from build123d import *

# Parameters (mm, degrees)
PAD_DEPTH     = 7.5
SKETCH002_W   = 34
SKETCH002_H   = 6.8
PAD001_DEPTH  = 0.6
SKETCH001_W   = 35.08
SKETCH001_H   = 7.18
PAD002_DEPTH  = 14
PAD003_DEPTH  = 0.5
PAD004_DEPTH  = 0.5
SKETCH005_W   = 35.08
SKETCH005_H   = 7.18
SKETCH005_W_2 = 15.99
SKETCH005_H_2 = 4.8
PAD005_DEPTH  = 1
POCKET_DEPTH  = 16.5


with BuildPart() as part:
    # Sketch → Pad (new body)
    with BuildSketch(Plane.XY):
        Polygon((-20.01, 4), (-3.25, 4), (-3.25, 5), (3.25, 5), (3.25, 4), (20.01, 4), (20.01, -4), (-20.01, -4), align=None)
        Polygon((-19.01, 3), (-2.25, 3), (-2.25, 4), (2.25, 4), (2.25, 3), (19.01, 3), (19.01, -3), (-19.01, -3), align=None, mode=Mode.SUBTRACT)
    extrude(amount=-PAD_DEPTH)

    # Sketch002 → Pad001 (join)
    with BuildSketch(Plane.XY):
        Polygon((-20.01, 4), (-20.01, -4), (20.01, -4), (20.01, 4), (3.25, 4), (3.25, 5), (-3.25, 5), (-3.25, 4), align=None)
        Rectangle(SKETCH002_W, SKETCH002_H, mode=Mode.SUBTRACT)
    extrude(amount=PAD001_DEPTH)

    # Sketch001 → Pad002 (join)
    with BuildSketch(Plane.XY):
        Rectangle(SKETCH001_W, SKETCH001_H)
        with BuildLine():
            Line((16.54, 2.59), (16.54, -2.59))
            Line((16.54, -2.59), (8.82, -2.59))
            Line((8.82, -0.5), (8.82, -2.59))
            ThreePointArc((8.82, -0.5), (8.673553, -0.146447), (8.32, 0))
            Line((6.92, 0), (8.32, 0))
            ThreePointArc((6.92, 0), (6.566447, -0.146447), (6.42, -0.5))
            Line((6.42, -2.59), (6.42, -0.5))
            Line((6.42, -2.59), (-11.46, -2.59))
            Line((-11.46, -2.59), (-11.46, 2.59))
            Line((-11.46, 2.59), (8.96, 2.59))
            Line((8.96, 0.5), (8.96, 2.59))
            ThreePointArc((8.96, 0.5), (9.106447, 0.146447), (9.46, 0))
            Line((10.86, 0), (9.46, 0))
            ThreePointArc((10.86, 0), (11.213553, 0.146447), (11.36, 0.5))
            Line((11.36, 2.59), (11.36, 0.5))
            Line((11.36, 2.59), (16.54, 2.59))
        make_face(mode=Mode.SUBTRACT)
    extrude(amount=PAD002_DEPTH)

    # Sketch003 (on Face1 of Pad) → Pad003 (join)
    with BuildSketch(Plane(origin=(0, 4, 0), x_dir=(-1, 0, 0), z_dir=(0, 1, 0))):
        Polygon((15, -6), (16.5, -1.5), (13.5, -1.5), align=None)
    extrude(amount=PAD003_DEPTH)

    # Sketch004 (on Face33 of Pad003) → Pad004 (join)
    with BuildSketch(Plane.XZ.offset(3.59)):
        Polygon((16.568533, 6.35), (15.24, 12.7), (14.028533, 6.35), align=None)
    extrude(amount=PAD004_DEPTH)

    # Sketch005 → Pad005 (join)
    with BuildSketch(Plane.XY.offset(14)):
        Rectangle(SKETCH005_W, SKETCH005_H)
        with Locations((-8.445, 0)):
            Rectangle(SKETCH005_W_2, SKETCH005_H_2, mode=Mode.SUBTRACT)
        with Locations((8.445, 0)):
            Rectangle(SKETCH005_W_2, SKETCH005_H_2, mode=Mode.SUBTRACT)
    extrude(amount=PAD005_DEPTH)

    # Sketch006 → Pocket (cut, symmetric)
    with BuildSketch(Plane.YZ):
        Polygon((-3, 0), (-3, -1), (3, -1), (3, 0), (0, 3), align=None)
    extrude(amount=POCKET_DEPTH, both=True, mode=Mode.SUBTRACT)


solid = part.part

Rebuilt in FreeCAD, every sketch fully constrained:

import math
import FreeCAD as App
import Part
import Sketcher
from FreeCAD import Vector
Q = App.Units.Quantity

doc = App.newDocument("Part")
body = doc.addObject("PartDesign::Body", "Body")

sketch1 = body.newObject("Sketcher::SketchObject", "Sketch")
sketch1.AttachmentSupport = (doc.getObject("XY_Plane"), [""])
sketch1.MapMode = "FlatFace"
sketch1.addGeometry([
    Part.LineSegment(Vector(-3.25, 4, 0), Vector(-20.01, 4, 0)),
    Part.LineSegment(Vector(-20.01, 4, 0), Vector(-20.01, -4, 0)),
    Part.LineSegment(Vector(-20.01, -4, 0), Vector(20.01, -4, 0)),
    Part.LineSegment(Vector(20.01, -4, 0), Vector(20.01, 4, 0)),
    Part.LineSegment(Vector(20.01, 4, 0), Vector(3.25, 4, 0)),
    Part.LineSegment(Vector(3.25, 4, 0), Vector(3.25, 5, 0)),
    Part.LineSegment(Vector(3.25, 5, 0), Vector(-3.25, 5, 0)),
    Part.LineSegment(Vector(-3.25, 5, 0), Vector(-3.25, 4, 0)),
    Part.LineSegment(Vector(-19.01, 3, 0), Vector(-2.25, 3, 0)),
    Part.LineSegment(Vector(-2.25, 3, 0), Vector(-2.25, 4, 0)),
    Part.LineSegment(Vector(-2.25, 4, 0), Vector(2.25, 4, 0)),
    Part.LineSegment(Vector(2.25, 4, 0), Vector(2.25, 3, 0)),
    Part.LineSegment(Vector(2.25, 3, 0), Vector(19.01, 3, 0)),
    Part.LineSegment(Vector(19.01, 3, 0), Vector(19.01, -3, 0)),
    Part.LineSegment(Vector(19.01, -3, 0), Vector(-19.01, -3, 0)),
    Part.LineSegment(Vector(-19.01, -3, 0), Vector(-19.01, 3, 0)),
], False)
sketch1.addConstraint([
    Sketcher.Constraint("Coincident", 0, 2, 1, 1),
    Sketcher.Constraint("Coincident", 1, 2, 2, 1),
    Sketcher.Constraint("Coincident", 2, 2, 3, 1),
    Sketcher.Constraint("Coincident", 3, 2, 4, 1),
    Sketcher.Constraint("Coincident", 4, 2, 5, 1),
    Sketcher.Constraint("Coincident", 5, 2, 6, 1),
    Sketcher.Constraint("Coincident", 6, 2, 7, 1),
    Sketcher.Constraint("Coincident", 7, 2, 0, 1),
    Sketcher.Constraint("Coincident", 8, 2, 9, 1),
    Sketcher.Constraint("Coincident", 9, 2, 10, 1),
    Sketcher.Constraint("Coincident", 10, 2, 11, 1),
    Sketcher.Constraint("Coincident", 11, 2, 12, 1),
    Sketcher.Constraint("Coincident", 12, 2, 13, 1),
    Sketcher.Constraint("Coincident", 13, 2, 14, 1),
    Sketcher.Constraint("Coincident", 14, 2, 15, 1),
    Sketcher.Constraint("Coincident", 15, 2, 8, 1),
    Sketcher.Constraint("Horizontal", 0),
    Sketcher.Constraint("Vertical", 1),
    Sketcher.Constraint("Horizontal", 2),
    Sketcher.Constraint("Vertical", 3),
    Sketcher.Constraint("Horizontal", 4),
    Sketcher.Constraint("Vertical", 5),
    Sketcher.Constraint("Horizontal", 6),
    Sketcher.Constraint("Vertical", 7),
    Sketcher.Constraint("Horizontal", 8),
    Sketcher.Constraint("Vertical", 9),
    Sketcher.Constraint("Horizontal", 10),
    Sketcher.Constraint("Vertical", 11),
    Sketcher.Constraint("Horizontal", 12),
    Sketcher.Constraint("Vertical", 13),
    Sketcher.Constraint("Horizontal", 14),
    Sketcher.Constraint("Vertical", 15),
    Sketcher.Constraint("Symmetric", 0, 2, 2, 2, -1, 1),
    Sketcher.Constraint("Symmetric", 12, 2, 14, 2, -1, 1),
    Sketcher.Constraint("Symmetric", 4, 2, 7, 2, -2),
    Sketcher.Constraint("Symmetric", 8, 2, 11, 2, -2),
    Sketcher.Constraint("Horizontal", 7, 2, 9, 2),
    Sketcher.Constraint("Equal", 4, 8),
    Sketcher.Constraint("Equal", 7, 9),
    Sketcher.Constraint("DistanceY", 1, 2, 1, 1, Q("8 mm")),
    Sketcher.Constraint("DistanceY", 5, 1, 5, 2, Q("1 mm")),
    Sketcher.Constraint("DistanceX", 6, 2, 6, 1, Q("6.5 mm")),
    Sketcher.Constraint("DistanceX", 10, 1, 10, 2, Q("4.5 mm")),
    Sketcher.Constraint("DistanceX", 0, 2, 0, 1, Q("16.76 mm")),
])
pad1 = body.newObject("PartDesign::Pad", "Pad")
pad1.Profile = sketch1
pad1.Length = 7.5
pad1.Reversed = True

sketch2 = body.newObject("Sketcher::SketchObject", "Sketch001")
sketch2.AttachmentSupport = (doc.getObject("XY_Plane"), [""])
sketch2.MapMode = "FlatFace"
sketch2.addGeometry([
    Part.LineSegment(Vector(-20.01, 4, 0), Vector(-20.01, -4, 0)),
    Part.LineSegment(Vector(-20.01, -4, 0), Vector(20.01, -4, 0)),
    Part.LineSegment(Vector(20.01, -4, 0), Vector(20.01, 4, 0)),
    Part.LineSegment(Vector(20.01, 4, 0), Vector(3.25, 4, 0)),
    Part.LineSegment(Vector(3.25, 4, 0), Vector(3.25, 5, 0)),
    Part.LineSegment(Vector(3.25, 5, 0), Vector(-3.25, 5, 0)),
    Part.LineSegment(Vector(-3.25, 5, 0), Vector(-3.25, 4, 0)),
    Part.LineSegment(Vector(-3.25, 4, 0), Vector(-20.01, 4, 0)),
    Part.LineSegment(Vector(17, -3.4, 0), Vector(-17, -3.4, 0)),
    Part.LineSegment(Vector(-17, -3.4, 0), Vector(-17, 3.4, 0)),
    Part.LineSegment(Vector(-17, 3.4, 0), Vector(17, 3.4, 0)),
    Part.LineSegment(Vector(17, 3.4, 0), Vector(17, -3.4, 0)),
], False)
sketch2.addConstraint([
    Sketcher.Constraint("Coincident", 0, 2, 1, 1),
    Sketcher.Constraint("Coincident", 1, 2, 2, 1),
    Sketcher.Constraint("Coincident", 2, 2, 3, 1),
    Sketcher.Constraint("Coincident", 3, 2, 4, 1),
    Sketcher.Constraint("Coincident", 4, 2, 5, 1),
    Sketcher.Constraint("Coincident", 5, 2, 6, 1),
    Sketcher.Constraint("Coincident", 6, 2, 7, 1),
    Sketcher.Constraint("Coincident", 7, 2, 0, 1),
    Sketcher.Constraint("Coincident", 8, 2, 9, 1),
    Sketcher.Constraint("Coincident", 9, 2, 10, 1),
    Sketcher.Constraint("Coincident", 10, 2, 11, 1),
    Sketcher.Constraint("Coincident", 11, 2, 8, 1),
    Sketcher.Constraint("Vertical", 0),
    Sketcher.Constraint("Horizontal", 1),
    Sketcher.Constraint("Vertical", 2),
    Sketcher.Constraint("Horizontal", 3),
    Sketcher.Constraint("Vertical", 4),
    Sketcher.Constraint("Horizontal", 5),
    Sketcher.Constraint("Vertical", 6),
    Sketcher.Constraint("Horizontal", 7),
    Sketcher.Constraint("Horizontal", 8),
    Sketcher.Constraint("Vertical", 9),
    Sketcher.Constraint("Horizontal", 10),
    Sketcher.Constraint("Vertical", 11),
    Sketcher.Constraint("Symmetric", 0, 2, 2, 2, -1, 1),
    Sketcher.Constraint("Symmetric", 8, 2, 10, 2, -1, 1),
    Sketcher.Constraint("Symmetric", 3, 2, 6, 2, -2),
    Sketcher.Constraint("DistanceX", 8, 2, 8, 1, Q("34 mm")),
    Sketcher.Constraint("DistanceY", 0, 2, 0, 1, Q("8 mm")),
    Sketcher.Constraint("DistanceY", 4, 1, 4, 2, Q("1 mm")),
    Sketcher.Constraint("DistanceX", 5, 2, 5, 1, Q("6.5 mm")),
    Sketcher.Constraint("DistanceY", 9, 1, 9, 2, Q("6.8 mm")),
    Sketcher.Constraint("DistanceX", 1, 1, 1, 2, Q("40.02 mm")),
])
pad2 = body.newObject("PartDesign::Pad", "Pad001")
pad2.Profile = sketch2
pad2.Length = 0.6

sketch3 = body.newObject("Sketcher::SketchObject", "Sketch002")
sketch3.AttachmentSupport = (doc.getObject("XY_Plane"), [""])
sketch3.MapMode = "FlatFace"
sketch3.addGeometry([
    Part.LineSegment(Vector(-17.54, 3.59, 0), Vector(-17.54, -3.59, 0)),
    Part.LineSegment(Vector(-17.54, -3.59, 0), Vector(17.54, -3.59, 0)),
    Part.LineSegment(Vector(17.54, -3.59, 0), Vector(17.54, 3.59, 0)),
    Part.LineSegment(Vector(17.54, 3.59, 0), Vector(-17.54, 3.59, 0)),
    Part.LineSegment(Vector(11.36, 2.59, 0), Vector(16.54, 2.59, 0)),
    Part.LineSegment(Vector(16.54, 2.59, 0), Vector(16.54, -2.59, 0)),
    Part.LineSegment(Vector(16.54, -2.59, 0), Vector(8.82, -2.59, 0)),
    Part.LineSegment(Vector(8.82, -2.59, 0), Vector(8.82, -0.5, 0)),
    Part.ArcOfCircle(Part.Circle(Vector(8.319999, -0.500001, 0), Vector(0, 0, 1), 0.500001), math.radians(0.000153), math.radians(89.999847)),
    Part.LineSegment(Vector(8.32, 0, 0), Vector(6.92, 0, 0)),
    Part.ArcOfCircle(Part.Circle(Vector(6.920001, -0.500001, 0), Vector(0, 0, 1), 0.500001), math.radians(90.000153), math.radians(179.999847)),
    Part.LineSegment(Vector(6.42, -0.5, 0), Vector(6.42, -2.59, 0)),
    Part.LineSegment(Vector(6.42, -2.59, 0), Vector(-11.46, -2.59, 0)),
    Part.LineSegment(Vector(-11.46, -2.59, 0), Vector(-11.46, 2.59, 0)),
    Part.LineSegment(Vector(-11.46, 2.59, 0), Vector(8.96, 2.59, 0)),
    Part.LineSegment(Vector(8.96, 2.59, 0), Vector(8.96, 0.5, 0)),
    Part.ArcOfCircle(Part.Circle(Vector(9.460001, 0.500001, 0), Vector(0, 0, 1), 0.500001), math.radians(-179.999847), math.radians(-90.000153)),
    Part.LineSegment(Vector(9.46, 0, 0), Vector(10.86, 0, 0)),
    Part.ArcOfCircle(Part.Circle(Vector(10.859999, 0.500001, 0), Vector(0, 0, 1), 0.500001), math.radians(-89.999847), math.radians(-0.000153)),
    Part.LineSegment(Vector(11.36, 0.5, 0), Vector(11.36, 2.59, 0)),
], False)
sketch3.addConstraint([
    Sketcher.Constraint("Coincident", 0, 2, 1, 1),
    Sketcher.Constraint("Coincident", 1, 2, 2, 1),
    Sketcher.Constraint("Coincident", 2, 2, 3, 1),
    Sketcher.Constraint("Coincident", 3, 2, 0, 1),
    Sketcher.Constraint("Coincident", 4, 2, 5, 1),
    Sketcher.Constraint("Coincident", 5, 2, 6, 1),
    Sketcher.Constraint("Coincident", 6, 2, 7, 1),
    Sketcher.Constraint("Coincident", 7, 2, 8, 1),
    Sketcher.Constraint("Coincident", 8, 2, 9, 1),
    Sketcher.Constraint("Coincident", 9, 2, 10, 1),
    Sketcher.Constraint("Coincident", 10, 2, 11, 1),
    Sketcher.Constraint("Coincident", 11, 2, 12, 1),
    Sketcher.Constraint("Coincident", 12, 2, 13, 1),
    Sketcher.Constraint("Coincident", 13, 2, 14, 1),
    Sketcher.Constraint("Coincident", 14, 2, 15, 1),
    Sketcher.Constraint("Coincident", 15, 2, 16, 1),
    Sketcher.Constraint("Coincident", 16, 2, 17, 1),
    Sketcher.Constraint("Coincident", 17, 2, 18, 1),
    Sketcher.Constraint("Coincident", 18, 2, 19, 1),
    Sketcher.Constraint("Coincident", 19, 2, 4, 1),
    Sketcher.Constraint("Vertical", 0),
    Sketcher.Constraint("Horizontal", 1),
    Sketcher.Constraint("Vertical", 2),
    Sketcher.Constraint("Horizontal", 3),
    Sketcher.Constraint("Horizontal", 4),
    Sketcher.Constraint("Vertical", 5),
    Sketcher.Constraint("Horizontal", 6),
    Sketcher.Constraint("Vertical", 7),
    Sketcher.Constraint("Horizontal", 9),
    Sketcher.Constraint("Vertical", 11),
    Sketcher.Constraint("Horizontal", 12),
    Sketcher.Constraint("Vertical", 13),
    Sketcher.Constraint("Horizontal", 14),
    Sketcher.Constraint("Vertical", 15),
    Sketcher.Constraint("Horizontal", 17),
    Sketcher.Constraint("Vertical", 19),
    Sketcher.Constraint("Equal", 8, 10),
    Sketcher.Constraint("Equal", 10, 16),
    Sketcher.Constraint("Equal", 16, 18),
    Sketcher.Constraint("Symmetric", 0, 2, 2, 2, -1, 1),
    Sketcher.Constraint("PointOnObject", 8, 2, -1),
    Sketcher.Constraint("PointOnObject", 16, 2, -1),
    Sketcher.Constraint("Horizontal", 10, 3, 7, 2),
    Sketcher.Constraint("Horizontal", 7, 2, 10, 2),
    Sketcher.Constraint("Horizontal", 6, 2, 11, 2),
    Sketcher.Constraint("Horizontal", 4, 2, 13, 2),
    Sketcher.Constraint("Horizontal", 18, 3, 15, 2),
    Sketcher.Constraint("Horizontal", 15, 2, 18, 2),
    Sketcher.Constraint("Vertical", 10, 3, 9, 2),
    Sketcher.Constraint("Vertical", 18, 3, 17, 2),
    Sketcher.Constraint("Equal", 9, 17),
    Sketcher.Constraint("Equal", 4, 5),
    Sketcher.Constraint("Equal", 11, 15),
    Sketcher.Constraint("Radius", 8, Q("0.500001 mm")),
    Sketcher.Constraint("DistanceX", 9, 2, 9, 1, Q("1.4 mm")),
    Sketcher.Constraint("DistanceX", 0, 2, 16, 3, Q("27.000001 mm")),
    Sketcher.Constraint("DistanceX", 4, 2, 2, 2, Q("1 mm")),
    Sketcher.Constraint("DistanceY", 4, 2, 2, 2, Q("1 mm")),
    Sketcher.Constraint("DistanceX", 1, 1, 1, 2, Q("35.08 mm")),
    Sketcher.Constraint("DistanceX", 4, 1, 4, 2, Q("5.18 mm")),
    Sketcher.Constraint("DistanceX", 6, 2, 6, 1, Q("7.72 mm")),
    Sketcher.Constraint("DistanceX", 12, 2, 12, 1, Q("17.88 mm")),
    Sketcher.Constraint("DistanceX", 14, 1, 14, 2, Q("20.42 mm")),
])
pad3 = body.newObject("PartDesign::Pad", "Pad002")
pad3.Profile = sketch3
pad3.Length = 14

sketch4 = body.newObject("Sketcher::SketchObject", "Sketch003")
sketch4.AttachmentSupport = (doc.getObject("XZ_Plane"), [""])
sketch4.MapMode = "FlatFace"
sketch4.AttachmentOffset = App.Placement(Vector(0, 0, -4), App.Rotation())
sketch4.addGeometry([
    Part.LineSegment(Vector(-15, -6, 0), Vector(-16.5, -1.5, 0)),
    Part.LineSegment(Vector(-16.5, -1.5, 0), Vector(-13.5, -1.5, 0)),
    Part.LineSegment(Vector(-13.5, -1.5, 0), Vector(-15, -6, 0)),
], False)
sketch4.addConstraint([
    Sketcher.Constraint("Coincident", 0, 2, 1, 1),
    Sketcher.Constraint("Coincident", 1, 2, 2, 1),
    Sketcher.Constraint("Coincident", 2, 2, 0, 1),
    Sketcher.Constraint("Horizontal", 1),
    Sketcher.Constraint("Equal", 0, 2),
    Sketcher.Constraint("DistanceX", 1, 1, 1, 2, Q("3 mm")),
    Sketcher.Constraint("DistanceX", 2, 2, -1, 1, Q("15 mm")),
    Sketcher.Constraint("DistanceY", 2, 2, -1, 1, Q("6 mm")),
    Sketcher.Constraint("DistanceY", 0, 2, -1, 1, Q("1.5 mm")),
])
pad4 = body.newObject("PartDesign::Pad", "Pad003")
pad4.Profile = sketch4
pad4.Length = 0.5
pad4.Reversed = True

sketch5 = body.newObject("Sketcher::SketchObject", "Sketch004")
sketch5.AttachmentSupport = (doc.getObject("XZ_Plane"), [""])
sketch5.MapMode = "FlatFace"
sketch5.AttachmentOffset = App.Placement(Vector(0, 0, 3.59), App.Rotation())
sketch5.addGeometry([
    Part.LineSegment(Vector(16.568533, 6.35, 0), Vector(15.24, 12.7, 0)),
    Part.LineSegment(Vector(15.24, 12.7, 0), Vector(14.028533, 6.35, 0)),
    Part.LineSegment(Vector(14.028533, 6.35, 0), Vector(16.568533, 6.35, 0)),
], False)
sketch5.addConstraint([
    Sketcher.Constraint("Coincident", 0, 2, 1, 1),
    Sketcher.Constraint("Coincident", 1, 2, 2, 1),
    Sketcher.Constraint("Coincident", 2, 2, 0, 1),
    Sketcher.Constraint("Horizontal", 2),
    Sketcher.Constraint("DistanceX", 2, 1, 2, 2, Q("2.54 mm")),
    Sketcher.Constraint("DistanceY", -1, 1, 0, 2, Q("12.7 mm")),
    Sketcher.Constraint("DistanceX", -1, 1, 0, 2, Q("15.24 mm")),
    Sketcher.Constraint("DistanceY", -1, 1, 1, 2, Q("6.35 mm")),
    Sketcher.Constraint("Distance", 1, Q("6.46453 mm")),
])
pad5 = body.newObject("PartDesign::Pad", "Pad004")
pad5.Profile = sketch5
pad5.Length = 0.5

sketch6 = body.newObject("Sketcher::SketchObject", "Sketch005")
sketch6.AttachmentSupport = (doc.getObject("XY_Plane"), [""])
sketch6.MapMode = "FlatFace"
sketch6.AttachmentOffset = App.Placement(Vector(0, 0, 14), App.Rotation())
sketch6.addGeometry([
    Part.LineSegment(Vector(-17.54, 3.59, 0), Vector(-17.54, -3.59, 0)),
    Part.LineSegment(Vector(-17.54, -3.59, 0), Vector(17.54, -3.59, 0)),
    Part.LineSegment(Vector(17.54, -3.59, 0), Vector(17.54, 3.59, 0)),
    Part.LineSegment(Vector(17.54, 3.59, 0), Vector(-17.54, 3.59, 0)),
    Part.LineSegment(Vector(-0.45, -2.4, 0), Vector(-16.44, -2.4, 0)),
    Part.LineSegment(Vector(-16.44, -2.4, 0), Vector(-16.44, 2.4, 0)),
    Part.LineSegment(Vector(-16.44, 2.4, 0), Vector(-0.45, 2.4, 0)),
    Part.LineSegment(Vector(-0.45, 2.4, 0), Vector(-0.45, -2.4, 0)),
    Part.LineSegment(Vector(16.44, -2.4, 0), Vector(0.45, -2.4, 0)),
    Part.LineSegment(Vector(0.45, -2.4, 0), Vector(0.45, 2.4, 0)),
    Part.LineSegment(Vector(0.45, 2.4, 0), Vector(16.44, 2.4, 0)),
    Part.LineSegment(Vector(16.44, 2.4, 0), Vector(16.44, -2.4, 0)),
], False)
sketch6.addConstraint([
    Sketcher.Constraint("Coincident", 0, 2, 1, 1),
    Sketcher.Constraint("Coincident", 1, 2, 2, 1),
    Sketcher.Constraint("Coincident", 2, 2, 3, 1),
    Sketcher.Constraint("Coincident", 3, 2, 0, 1),
    Sketcher.Constraint("Coincident", 4, 2, 5, 1),
    Sketcher.Constraint("Coincident", 5, 2, 6, 1),
    Sketcher.Constraint("Coincident", 6, 2, 7, 1),
    Sketcher.Constraint("Coincident", 7, 2, 4, 1),
    Sketcher.Constraint("Coincident", 8, 2, 9, 1),
    Sketcher.Constraint("Coincident", 9, 2, 10, 1),
    Sketcher.Constraint("Coincident", 10, 2, 11, 1),
    Sketcher.Constraint("Coincident", 11, 2, 8, 1),
    Sketcher.Constraint("Vertical", 0),
    Sketcher.Constraint("Horizontal", 1),
    Sketcher.Constraint("Vertical", 2),
    Sketcher.Constraint("Horizontal", 3),
    Sketcher.Constraint("Horizontal", 4),
    Sketcher.Constraint("Vertical", 5),
    Sketcher.Constraint("Horizontal", 6),
    Sketcher.Constraint("Vertical", 7),
    Sketcher.Constraint("Horizontal", 8),
    Sketcher.Constraint("Vertical", 9),
    Sketcher.Constraint("Horizontal", 10),
    Sketcher.Constraint("Vertical", 11),
    Sketcher.Constraint("Symmetric", 0, 2, 2, 2, -1, 1),
    Sketcher.Constraint("Symmetric", 6, 2, 8, 2, -1, 1),
    Sketcher.Constraint("Symmetric", 4, 2, 10, 2, -1, 1),
    Sketcher.Constraint("Horizontal", 7, 2, 8, 2),
    Sketcher.Constraint("DistanceY", 5, 1, 5, 2, Q("4.8 mm")),
    Sketcher.Constraint("DistanceX", 1, 1, 1, 2, Q("35.08 mm")),
    Sketcher.Constraint("DistanceX", 4, 2, 4, 1, Q("15.99 mm")),
    Sketcher.Constraint("DistanceY", 0, 2, 0, 1, Q("7.18 mm")),
    Sketcher.Constraint("DistanceX", 0, 2, 4, 2, Q("1.1 mm")),
])
pad6 = body.newObject("PartDesign::Pad", "Pad005")
pad6.Profile = sketch6
pad6.Length = 1

sketch7 = body.newObject("Sketcher::SketchObject", "Sketch006")
sketch7.AttachmentSupport = (doc.getObject("YZ_Plane"), [""])
sketch7.MapMode = "FlatFace"
sketch7.addGeometry([
    Part.LineSegment(Vector(-3, 0, 0), Vector(-3, -1, 0)),
    Part.LineSegment(Vector(-3, -1, 0), Vector(3, -1, 0)),
    Part.LineSegment(Vector(3, -1, 0), Vector(3, 0, 0)),
    Part.LineSegment(Vector(3, 0, 0), Vector(0, 3, 0)),
    Part.LineSegment(Vector(0, 3, 0), Vector(-3, 0, 0)),
], False)
sketch7.addConstraint([
    Sketcher.Constraint("Coincident", 0, 2, 1, 1),
    Sketcher.Constraint("Coincident", 1, 2, 2, 1),
    Sketcher.Constraint("Coincident", 2, 2, 3, 1),
    Sketcher.Constraint("Coincident", 3, 2, 4, 1),
    Sketcher.Constraint("Coincident", 4, 2, 0, 1),
    Sketcher.Constraint("Vertical", 0),
    Sketcher.Constraint("Horizontal", 1),
    Sketcher.Constraint("Vertical", 2),
    Sketcher.Constraint("Symmetric", 2, 2, 4, 2, -1, 1),
    Sketcher.Constraint("PointOnObject", 2, 2, -1),
    Sketcher.Constraint("PointOnObject", 3, 2, -2),
    Sketcher.Constraint("Perpendicular", 3, 4),
    Sketcher.Constraint("DistanceX", 1, 1, 1, 2, Q("6 mm")),
    Sketcher.Constraint("DistanceY", 0, 2, 0, 1, Q("1 mm")),
])
pocket1 = body.newObject("PartDesign::Pocket", "Pocket")
pocket1.Profile = sketch7
pocket1.Length = 33
pocket1.Midplane = True

doc.recompute()
